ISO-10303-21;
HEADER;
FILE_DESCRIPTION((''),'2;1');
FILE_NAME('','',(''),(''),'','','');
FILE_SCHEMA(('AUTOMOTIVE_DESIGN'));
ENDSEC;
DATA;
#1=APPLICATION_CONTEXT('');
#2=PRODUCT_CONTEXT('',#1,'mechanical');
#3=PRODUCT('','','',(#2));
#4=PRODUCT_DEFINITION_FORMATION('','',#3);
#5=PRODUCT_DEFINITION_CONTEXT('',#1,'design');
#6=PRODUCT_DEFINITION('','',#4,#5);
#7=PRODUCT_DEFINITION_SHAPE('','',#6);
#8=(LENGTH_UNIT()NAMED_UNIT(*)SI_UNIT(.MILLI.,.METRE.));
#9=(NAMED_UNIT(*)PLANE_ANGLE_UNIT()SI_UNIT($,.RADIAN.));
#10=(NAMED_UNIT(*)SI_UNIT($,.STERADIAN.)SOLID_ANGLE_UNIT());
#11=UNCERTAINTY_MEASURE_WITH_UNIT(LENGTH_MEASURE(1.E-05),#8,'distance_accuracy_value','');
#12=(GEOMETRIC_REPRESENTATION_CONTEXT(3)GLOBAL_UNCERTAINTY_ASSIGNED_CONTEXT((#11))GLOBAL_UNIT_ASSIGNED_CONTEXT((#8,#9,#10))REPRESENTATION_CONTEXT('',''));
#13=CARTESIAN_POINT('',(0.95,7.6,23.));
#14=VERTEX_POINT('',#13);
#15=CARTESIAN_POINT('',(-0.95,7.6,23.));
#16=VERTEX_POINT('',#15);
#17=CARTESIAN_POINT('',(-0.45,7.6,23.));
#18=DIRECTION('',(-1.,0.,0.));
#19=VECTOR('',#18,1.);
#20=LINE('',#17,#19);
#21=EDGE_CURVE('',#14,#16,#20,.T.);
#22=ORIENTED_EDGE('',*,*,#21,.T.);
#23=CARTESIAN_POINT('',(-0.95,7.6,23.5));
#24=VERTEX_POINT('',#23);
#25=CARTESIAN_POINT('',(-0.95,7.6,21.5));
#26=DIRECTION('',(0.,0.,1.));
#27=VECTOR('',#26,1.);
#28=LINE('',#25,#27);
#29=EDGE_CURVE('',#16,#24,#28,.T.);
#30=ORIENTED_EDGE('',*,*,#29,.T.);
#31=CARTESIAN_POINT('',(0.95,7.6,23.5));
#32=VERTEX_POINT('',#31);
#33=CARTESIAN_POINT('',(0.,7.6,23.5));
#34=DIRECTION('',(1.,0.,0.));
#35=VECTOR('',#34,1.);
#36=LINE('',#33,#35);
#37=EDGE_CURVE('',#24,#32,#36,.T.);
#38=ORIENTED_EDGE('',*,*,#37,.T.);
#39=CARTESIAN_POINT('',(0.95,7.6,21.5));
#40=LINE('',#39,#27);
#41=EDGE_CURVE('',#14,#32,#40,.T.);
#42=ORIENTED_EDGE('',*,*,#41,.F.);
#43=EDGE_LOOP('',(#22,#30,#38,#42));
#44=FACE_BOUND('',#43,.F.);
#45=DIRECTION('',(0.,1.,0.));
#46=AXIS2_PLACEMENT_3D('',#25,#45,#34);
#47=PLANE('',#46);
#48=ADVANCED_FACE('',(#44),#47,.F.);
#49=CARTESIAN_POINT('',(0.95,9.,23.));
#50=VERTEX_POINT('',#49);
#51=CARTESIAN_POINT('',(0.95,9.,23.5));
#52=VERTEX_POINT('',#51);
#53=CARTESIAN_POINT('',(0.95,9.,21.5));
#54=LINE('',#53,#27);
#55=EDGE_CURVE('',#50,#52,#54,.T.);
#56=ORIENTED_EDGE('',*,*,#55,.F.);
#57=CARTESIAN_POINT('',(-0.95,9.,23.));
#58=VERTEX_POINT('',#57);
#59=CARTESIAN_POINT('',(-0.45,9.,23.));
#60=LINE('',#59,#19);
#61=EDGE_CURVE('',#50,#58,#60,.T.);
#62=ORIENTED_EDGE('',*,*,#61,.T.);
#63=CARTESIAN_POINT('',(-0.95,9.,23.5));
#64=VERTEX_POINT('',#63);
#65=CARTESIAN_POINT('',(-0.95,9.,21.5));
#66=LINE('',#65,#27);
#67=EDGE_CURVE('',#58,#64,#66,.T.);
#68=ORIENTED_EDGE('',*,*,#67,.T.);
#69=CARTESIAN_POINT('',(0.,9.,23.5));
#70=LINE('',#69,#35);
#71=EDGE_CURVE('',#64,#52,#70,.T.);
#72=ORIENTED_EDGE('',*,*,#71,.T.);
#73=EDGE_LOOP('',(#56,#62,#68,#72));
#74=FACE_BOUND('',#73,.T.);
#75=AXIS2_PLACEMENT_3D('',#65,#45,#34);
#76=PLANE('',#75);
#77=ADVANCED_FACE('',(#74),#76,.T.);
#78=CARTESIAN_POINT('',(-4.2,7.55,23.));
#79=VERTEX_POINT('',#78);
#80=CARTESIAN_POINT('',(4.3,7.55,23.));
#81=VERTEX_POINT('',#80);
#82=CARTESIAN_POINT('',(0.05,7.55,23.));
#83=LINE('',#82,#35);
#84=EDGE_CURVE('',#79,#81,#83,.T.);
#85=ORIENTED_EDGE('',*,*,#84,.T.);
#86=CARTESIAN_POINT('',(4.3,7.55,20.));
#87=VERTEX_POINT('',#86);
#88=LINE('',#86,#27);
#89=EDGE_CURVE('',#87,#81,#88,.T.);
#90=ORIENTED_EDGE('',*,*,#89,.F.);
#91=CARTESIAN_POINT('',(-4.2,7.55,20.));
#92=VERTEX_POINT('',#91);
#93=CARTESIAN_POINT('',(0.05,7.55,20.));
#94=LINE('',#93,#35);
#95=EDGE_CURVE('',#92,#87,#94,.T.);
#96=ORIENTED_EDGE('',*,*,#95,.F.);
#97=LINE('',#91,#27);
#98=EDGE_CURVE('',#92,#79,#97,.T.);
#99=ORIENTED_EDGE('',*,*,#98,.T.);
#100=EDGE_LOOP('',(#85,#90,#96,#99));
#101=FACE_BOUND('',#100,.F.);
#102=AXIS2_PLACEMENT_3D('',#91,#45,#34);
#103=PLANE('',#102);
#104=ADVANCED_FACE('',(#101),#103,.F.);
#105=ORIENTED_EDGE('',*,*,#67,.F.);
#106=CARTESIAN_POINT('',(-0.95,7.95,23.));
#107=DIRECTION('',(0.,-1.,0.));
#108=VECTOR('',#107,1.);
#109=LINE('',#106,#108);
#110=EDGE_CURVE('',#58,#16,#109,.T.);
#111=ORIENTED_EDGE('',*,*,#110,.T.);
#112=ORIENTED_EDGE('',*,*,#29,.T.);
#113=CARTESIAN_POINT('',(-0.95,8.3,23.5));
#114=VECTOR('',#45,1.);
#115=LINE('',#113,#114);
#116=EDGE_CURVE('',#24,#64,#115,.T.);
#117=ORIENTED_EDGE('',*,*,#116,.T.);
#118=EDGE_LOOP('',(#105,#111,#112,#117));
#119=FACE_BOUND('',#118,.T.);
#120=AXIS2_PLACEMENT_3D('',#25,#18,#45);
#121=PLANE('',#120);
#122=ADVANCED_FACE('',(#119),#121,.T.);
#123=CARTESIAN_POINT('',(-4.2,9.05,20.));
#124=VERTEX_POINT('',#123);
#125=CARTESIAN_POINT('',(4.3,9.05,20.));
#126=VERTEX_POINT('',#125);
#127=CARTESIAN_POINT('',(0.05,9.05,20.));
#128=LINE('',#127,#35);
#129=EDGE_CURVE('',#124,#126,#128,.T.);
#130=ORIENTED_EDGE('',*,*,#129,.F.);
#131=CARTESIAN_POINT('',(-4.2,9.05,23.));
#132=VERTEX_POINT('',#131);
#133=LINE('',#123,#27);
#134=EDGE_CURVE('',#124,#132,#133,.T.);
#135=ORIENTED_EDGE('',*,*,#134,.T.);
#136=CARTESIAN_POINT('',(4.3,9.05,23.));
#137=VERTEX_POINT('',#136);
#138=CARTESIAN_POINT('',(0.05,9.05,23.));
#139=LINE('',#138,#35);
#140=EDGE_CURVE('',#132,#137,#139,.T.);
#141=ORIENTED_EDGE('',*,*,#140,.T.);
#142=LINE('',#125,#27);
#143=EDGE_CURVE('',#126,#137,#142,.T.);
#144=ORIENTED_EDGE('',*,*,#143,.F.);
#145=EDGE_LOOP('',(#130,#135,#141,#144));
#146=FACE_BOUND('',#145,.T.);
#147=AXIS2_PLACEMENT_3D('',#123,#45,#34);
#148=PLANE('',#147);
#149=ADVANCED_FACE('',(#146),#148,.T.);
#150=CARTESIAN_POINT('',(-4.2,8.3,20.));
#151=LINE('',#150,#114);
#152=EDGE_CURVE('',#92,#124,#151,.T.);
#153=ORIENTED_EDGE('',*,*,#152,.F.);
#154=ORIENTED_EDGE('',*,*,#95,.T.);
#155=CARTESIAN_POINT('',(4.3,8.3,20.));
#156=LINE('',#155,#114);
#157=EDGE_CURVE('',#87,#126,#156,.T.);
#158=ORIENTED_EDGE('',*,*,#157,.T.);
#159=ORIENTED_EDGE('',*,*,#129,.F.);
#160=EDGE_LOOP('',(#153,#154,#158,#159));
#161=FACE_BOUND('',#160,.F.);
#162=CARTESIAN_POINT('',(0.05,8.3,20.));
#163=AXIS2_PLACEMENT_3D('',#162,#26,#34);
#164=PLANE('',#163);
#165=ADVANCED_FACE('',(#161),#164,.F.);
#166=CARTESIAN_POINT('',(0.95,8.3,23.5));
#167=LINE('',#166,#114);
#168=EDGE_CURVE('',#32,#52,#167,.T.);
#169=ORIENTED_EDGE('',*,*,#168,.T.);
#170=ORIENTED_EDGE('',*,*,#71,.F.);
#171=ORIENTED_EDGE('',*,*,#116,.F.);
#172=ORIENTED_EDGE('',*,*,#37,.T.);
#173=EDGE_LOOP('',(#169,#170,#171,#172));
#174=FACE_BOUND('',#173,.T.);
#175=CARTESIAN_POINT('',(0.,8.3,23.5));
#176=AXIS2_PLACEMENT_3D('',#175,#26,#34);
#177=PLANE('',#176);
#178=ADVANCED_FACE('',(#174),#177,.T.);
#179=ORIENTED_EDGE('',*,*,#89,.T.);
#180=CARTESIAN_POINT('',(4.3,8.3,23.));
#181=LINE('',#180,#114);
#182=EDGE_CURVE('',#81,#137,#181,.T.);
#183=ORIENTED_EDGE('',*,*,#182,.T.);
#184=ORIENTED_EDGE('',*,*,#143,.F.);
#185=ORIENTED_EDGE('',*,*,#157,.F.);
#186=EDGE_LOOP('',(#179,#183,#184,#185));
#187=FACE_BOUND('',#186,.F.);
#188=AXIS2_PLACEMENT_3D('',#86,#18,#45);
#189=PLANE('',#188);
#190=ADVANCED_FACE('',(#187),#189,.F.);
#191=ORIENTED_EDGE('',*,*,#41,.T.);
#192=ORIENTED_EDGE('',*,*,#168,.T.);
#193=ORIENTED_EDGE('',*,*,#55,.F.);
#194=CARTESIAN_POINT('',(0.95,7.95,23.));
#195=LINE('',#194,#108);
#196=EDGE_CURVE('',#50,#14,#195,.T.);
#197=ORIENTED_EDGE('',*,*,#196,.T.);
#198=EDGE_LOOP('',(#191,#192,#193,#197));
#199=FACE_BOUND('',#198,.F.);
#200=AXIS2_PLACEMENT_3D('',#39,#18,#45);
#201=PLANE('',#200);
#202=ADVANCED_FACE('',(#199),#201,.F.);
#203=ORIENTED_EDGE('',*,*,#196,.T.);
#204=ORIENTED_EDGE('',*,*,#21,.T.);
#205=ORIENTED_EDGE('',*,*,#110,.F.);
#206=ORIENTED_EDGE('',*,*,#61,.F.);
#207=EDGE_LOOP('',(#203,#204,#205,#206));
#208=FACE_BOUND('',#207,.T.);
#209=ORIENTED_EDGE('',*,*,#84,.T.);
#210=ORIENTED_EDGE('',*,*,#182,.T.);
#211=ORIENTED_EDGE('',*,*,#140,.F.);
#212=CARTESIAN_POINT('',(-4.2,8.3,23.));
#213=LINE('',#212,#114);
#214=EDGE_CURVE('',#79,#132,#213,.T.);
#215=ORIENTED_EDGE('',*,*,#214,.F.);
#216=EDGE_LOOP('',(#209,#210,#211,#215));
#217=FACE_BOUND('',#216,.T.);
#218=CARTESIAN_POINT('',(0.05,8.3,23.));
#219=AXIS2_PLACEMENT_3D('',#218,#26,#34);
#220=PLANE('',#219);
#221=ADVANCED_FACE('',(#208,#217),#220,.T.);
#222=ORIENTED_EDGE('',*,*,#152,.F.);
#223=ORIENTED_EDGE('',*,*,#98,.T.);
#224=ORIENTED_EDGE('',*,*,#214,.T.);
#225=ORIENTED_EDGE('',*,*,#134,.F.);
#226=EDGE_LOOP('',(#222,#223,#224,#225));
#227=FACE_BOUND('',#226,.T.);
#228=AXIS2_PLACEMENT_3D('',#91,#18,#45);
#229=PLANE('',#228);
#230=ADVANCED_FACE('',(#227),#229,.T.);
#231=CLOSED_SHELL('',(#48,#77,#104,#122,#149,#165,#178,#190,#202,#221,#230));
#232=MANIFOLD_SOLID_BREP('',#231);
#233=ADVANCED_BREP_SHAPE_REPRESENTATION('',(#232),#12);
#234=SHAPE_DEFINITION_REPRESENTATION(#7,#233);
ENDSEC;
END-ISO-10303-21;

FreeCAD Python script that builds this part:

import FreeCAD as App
import Part
import Sketcher

V = App.Vector
Q = App.Units.Quantity


def add_polygon(sketch, points):
    """Adds a closed chain of lines whose ends are joined by coincident constraints."""
    first, n = sketch.GeometryCount, len(points)
    for a, b in zip(points, points[1:] + points[:1]):
        sketch.addGeometry(Part.LineSegment(App.Vector(*a, 0), App.Vector(*b, 0)), False)
    for i in range(n):
        sketch.addConstraint(Sketcher.Constraint("Coincident", first + i, 2, first + (i + 1) % n, 1))

doc = App.newDocument("Part")
body = doc.addObject("PartDesign::Body", "Body")

sketch1 = body.newObject("Sketcher::SketchObject", "Sketch")
sketch1.AttachmentSupport = (doc.getObject("XY_Plane"), [""])
sketch1.MapMode = "FlatFace"
sketch1.AttachmentOffset = App.Placement(V(0, 0, 3.5), App.Rotation())
add_polygon(sketch1, [(-1, 9), (-1, 7.6), (0.9, 7.6), (0.9, 9)])
sketch1.addConstraint(Sketcher.Constraint("Vertical", 0))
sketch1.addConstraint(Sketcher.Constraint("Horizontal", 1))
sketch1.addConstraint(Sketcher.Constraint("Vertical", 2))
sketch1.addConstraint(Sketcher.Constraint("Horizontal", 3))
sketch1.addConstraint(Sketcher.Constraint("DistanceX", 1, 1, 1, 2, Q("1.9 mm")))
sketch1.addConstraint(Sketcher.Constraint("DistanceY", 0, 2, 0, 1, Q("1.4 mm")))
sketch1.addConstraint(Sketcher.Constraint("DistanceX", 0, 2, -1, 1, Q("1 mm")))
sketch1.addConstraint(Sketcher.Constraint("DistanceY", -1, 1, 2, 2, Q("9 mm")))
pad1 = body.newObject("PartDesign::Pad", "Pad")
pad1.Profile = sketch1
pad1.Length = 2
body2 = doc.addObject("PartDesign::Body", "Body001")

sketch2 = body2.newObject("Sketcher::SketchObject", "Sketch001")
sketch2.AttachmentSupport = (doc.getObject("XY_Plane001"), [""])
sketch2.MapMode = "FlatFace"
sketch2.AttachmentOffset = App.Placement(V(0, 0, 2), App.Rotation())
add_polygon(sketch2, [(-4.25, 9.05), (-4.25, 7.55), (4.25, 7.55), (4.25, 9.05)])
sketch2.addConstraint(Sketcher.Constraint("Vertical", 0))
sketch2.addConstraint(Sketcher.Constraint("Horizontal", 1))
sketch2.addConstraint(Sketcher.Constraint("Vertical", 2))
sketch2.addConstraint(Sketcher.Constraint("Horizontal", 3))
sketch2.addConstraint(Sketcher.Constraint("DistanceX", 1, 1, 1, 2, Q("8.5 mm")))
sketch2.addConstraint(Sketcher.Constraint("DistanceY", 0, 2, 0, 1, Q("1.5 mm")))
sketch2.addConstraint(Sketcher.Constraint("DistanceX", 0, 2, -1, 1, Q("4.25 mm")))
sketch2.addConstraint(Sketcher.Constraint("DistanceY", -1, 1, 0, 2, Q("7.55 mm")))
pad2 = body2.newObject("PartDesign::Pad", "Pad001")
pad2.Profile = sketch2
pad2.Length = 3
doc.recompute()

boolean = body2.newObject("PartDesign::Boolean", "Boolean")
boolean.Type = "Fuse"
boolean.addObjects([body])
body3 = doc.addObject("PartDesign::Body", "Body002")
doc.recompute()

body2.Placement = App.Placement(V(0.05, 0, 18), App.Rotation(V(0, 0, 1), 0))
boolean2 = body3.newObject("PartDesign::Boolean", "Boolean001")
boolean2.Type = "Fuse"
boolean2.addObjects([body2])

doc.recompute()
